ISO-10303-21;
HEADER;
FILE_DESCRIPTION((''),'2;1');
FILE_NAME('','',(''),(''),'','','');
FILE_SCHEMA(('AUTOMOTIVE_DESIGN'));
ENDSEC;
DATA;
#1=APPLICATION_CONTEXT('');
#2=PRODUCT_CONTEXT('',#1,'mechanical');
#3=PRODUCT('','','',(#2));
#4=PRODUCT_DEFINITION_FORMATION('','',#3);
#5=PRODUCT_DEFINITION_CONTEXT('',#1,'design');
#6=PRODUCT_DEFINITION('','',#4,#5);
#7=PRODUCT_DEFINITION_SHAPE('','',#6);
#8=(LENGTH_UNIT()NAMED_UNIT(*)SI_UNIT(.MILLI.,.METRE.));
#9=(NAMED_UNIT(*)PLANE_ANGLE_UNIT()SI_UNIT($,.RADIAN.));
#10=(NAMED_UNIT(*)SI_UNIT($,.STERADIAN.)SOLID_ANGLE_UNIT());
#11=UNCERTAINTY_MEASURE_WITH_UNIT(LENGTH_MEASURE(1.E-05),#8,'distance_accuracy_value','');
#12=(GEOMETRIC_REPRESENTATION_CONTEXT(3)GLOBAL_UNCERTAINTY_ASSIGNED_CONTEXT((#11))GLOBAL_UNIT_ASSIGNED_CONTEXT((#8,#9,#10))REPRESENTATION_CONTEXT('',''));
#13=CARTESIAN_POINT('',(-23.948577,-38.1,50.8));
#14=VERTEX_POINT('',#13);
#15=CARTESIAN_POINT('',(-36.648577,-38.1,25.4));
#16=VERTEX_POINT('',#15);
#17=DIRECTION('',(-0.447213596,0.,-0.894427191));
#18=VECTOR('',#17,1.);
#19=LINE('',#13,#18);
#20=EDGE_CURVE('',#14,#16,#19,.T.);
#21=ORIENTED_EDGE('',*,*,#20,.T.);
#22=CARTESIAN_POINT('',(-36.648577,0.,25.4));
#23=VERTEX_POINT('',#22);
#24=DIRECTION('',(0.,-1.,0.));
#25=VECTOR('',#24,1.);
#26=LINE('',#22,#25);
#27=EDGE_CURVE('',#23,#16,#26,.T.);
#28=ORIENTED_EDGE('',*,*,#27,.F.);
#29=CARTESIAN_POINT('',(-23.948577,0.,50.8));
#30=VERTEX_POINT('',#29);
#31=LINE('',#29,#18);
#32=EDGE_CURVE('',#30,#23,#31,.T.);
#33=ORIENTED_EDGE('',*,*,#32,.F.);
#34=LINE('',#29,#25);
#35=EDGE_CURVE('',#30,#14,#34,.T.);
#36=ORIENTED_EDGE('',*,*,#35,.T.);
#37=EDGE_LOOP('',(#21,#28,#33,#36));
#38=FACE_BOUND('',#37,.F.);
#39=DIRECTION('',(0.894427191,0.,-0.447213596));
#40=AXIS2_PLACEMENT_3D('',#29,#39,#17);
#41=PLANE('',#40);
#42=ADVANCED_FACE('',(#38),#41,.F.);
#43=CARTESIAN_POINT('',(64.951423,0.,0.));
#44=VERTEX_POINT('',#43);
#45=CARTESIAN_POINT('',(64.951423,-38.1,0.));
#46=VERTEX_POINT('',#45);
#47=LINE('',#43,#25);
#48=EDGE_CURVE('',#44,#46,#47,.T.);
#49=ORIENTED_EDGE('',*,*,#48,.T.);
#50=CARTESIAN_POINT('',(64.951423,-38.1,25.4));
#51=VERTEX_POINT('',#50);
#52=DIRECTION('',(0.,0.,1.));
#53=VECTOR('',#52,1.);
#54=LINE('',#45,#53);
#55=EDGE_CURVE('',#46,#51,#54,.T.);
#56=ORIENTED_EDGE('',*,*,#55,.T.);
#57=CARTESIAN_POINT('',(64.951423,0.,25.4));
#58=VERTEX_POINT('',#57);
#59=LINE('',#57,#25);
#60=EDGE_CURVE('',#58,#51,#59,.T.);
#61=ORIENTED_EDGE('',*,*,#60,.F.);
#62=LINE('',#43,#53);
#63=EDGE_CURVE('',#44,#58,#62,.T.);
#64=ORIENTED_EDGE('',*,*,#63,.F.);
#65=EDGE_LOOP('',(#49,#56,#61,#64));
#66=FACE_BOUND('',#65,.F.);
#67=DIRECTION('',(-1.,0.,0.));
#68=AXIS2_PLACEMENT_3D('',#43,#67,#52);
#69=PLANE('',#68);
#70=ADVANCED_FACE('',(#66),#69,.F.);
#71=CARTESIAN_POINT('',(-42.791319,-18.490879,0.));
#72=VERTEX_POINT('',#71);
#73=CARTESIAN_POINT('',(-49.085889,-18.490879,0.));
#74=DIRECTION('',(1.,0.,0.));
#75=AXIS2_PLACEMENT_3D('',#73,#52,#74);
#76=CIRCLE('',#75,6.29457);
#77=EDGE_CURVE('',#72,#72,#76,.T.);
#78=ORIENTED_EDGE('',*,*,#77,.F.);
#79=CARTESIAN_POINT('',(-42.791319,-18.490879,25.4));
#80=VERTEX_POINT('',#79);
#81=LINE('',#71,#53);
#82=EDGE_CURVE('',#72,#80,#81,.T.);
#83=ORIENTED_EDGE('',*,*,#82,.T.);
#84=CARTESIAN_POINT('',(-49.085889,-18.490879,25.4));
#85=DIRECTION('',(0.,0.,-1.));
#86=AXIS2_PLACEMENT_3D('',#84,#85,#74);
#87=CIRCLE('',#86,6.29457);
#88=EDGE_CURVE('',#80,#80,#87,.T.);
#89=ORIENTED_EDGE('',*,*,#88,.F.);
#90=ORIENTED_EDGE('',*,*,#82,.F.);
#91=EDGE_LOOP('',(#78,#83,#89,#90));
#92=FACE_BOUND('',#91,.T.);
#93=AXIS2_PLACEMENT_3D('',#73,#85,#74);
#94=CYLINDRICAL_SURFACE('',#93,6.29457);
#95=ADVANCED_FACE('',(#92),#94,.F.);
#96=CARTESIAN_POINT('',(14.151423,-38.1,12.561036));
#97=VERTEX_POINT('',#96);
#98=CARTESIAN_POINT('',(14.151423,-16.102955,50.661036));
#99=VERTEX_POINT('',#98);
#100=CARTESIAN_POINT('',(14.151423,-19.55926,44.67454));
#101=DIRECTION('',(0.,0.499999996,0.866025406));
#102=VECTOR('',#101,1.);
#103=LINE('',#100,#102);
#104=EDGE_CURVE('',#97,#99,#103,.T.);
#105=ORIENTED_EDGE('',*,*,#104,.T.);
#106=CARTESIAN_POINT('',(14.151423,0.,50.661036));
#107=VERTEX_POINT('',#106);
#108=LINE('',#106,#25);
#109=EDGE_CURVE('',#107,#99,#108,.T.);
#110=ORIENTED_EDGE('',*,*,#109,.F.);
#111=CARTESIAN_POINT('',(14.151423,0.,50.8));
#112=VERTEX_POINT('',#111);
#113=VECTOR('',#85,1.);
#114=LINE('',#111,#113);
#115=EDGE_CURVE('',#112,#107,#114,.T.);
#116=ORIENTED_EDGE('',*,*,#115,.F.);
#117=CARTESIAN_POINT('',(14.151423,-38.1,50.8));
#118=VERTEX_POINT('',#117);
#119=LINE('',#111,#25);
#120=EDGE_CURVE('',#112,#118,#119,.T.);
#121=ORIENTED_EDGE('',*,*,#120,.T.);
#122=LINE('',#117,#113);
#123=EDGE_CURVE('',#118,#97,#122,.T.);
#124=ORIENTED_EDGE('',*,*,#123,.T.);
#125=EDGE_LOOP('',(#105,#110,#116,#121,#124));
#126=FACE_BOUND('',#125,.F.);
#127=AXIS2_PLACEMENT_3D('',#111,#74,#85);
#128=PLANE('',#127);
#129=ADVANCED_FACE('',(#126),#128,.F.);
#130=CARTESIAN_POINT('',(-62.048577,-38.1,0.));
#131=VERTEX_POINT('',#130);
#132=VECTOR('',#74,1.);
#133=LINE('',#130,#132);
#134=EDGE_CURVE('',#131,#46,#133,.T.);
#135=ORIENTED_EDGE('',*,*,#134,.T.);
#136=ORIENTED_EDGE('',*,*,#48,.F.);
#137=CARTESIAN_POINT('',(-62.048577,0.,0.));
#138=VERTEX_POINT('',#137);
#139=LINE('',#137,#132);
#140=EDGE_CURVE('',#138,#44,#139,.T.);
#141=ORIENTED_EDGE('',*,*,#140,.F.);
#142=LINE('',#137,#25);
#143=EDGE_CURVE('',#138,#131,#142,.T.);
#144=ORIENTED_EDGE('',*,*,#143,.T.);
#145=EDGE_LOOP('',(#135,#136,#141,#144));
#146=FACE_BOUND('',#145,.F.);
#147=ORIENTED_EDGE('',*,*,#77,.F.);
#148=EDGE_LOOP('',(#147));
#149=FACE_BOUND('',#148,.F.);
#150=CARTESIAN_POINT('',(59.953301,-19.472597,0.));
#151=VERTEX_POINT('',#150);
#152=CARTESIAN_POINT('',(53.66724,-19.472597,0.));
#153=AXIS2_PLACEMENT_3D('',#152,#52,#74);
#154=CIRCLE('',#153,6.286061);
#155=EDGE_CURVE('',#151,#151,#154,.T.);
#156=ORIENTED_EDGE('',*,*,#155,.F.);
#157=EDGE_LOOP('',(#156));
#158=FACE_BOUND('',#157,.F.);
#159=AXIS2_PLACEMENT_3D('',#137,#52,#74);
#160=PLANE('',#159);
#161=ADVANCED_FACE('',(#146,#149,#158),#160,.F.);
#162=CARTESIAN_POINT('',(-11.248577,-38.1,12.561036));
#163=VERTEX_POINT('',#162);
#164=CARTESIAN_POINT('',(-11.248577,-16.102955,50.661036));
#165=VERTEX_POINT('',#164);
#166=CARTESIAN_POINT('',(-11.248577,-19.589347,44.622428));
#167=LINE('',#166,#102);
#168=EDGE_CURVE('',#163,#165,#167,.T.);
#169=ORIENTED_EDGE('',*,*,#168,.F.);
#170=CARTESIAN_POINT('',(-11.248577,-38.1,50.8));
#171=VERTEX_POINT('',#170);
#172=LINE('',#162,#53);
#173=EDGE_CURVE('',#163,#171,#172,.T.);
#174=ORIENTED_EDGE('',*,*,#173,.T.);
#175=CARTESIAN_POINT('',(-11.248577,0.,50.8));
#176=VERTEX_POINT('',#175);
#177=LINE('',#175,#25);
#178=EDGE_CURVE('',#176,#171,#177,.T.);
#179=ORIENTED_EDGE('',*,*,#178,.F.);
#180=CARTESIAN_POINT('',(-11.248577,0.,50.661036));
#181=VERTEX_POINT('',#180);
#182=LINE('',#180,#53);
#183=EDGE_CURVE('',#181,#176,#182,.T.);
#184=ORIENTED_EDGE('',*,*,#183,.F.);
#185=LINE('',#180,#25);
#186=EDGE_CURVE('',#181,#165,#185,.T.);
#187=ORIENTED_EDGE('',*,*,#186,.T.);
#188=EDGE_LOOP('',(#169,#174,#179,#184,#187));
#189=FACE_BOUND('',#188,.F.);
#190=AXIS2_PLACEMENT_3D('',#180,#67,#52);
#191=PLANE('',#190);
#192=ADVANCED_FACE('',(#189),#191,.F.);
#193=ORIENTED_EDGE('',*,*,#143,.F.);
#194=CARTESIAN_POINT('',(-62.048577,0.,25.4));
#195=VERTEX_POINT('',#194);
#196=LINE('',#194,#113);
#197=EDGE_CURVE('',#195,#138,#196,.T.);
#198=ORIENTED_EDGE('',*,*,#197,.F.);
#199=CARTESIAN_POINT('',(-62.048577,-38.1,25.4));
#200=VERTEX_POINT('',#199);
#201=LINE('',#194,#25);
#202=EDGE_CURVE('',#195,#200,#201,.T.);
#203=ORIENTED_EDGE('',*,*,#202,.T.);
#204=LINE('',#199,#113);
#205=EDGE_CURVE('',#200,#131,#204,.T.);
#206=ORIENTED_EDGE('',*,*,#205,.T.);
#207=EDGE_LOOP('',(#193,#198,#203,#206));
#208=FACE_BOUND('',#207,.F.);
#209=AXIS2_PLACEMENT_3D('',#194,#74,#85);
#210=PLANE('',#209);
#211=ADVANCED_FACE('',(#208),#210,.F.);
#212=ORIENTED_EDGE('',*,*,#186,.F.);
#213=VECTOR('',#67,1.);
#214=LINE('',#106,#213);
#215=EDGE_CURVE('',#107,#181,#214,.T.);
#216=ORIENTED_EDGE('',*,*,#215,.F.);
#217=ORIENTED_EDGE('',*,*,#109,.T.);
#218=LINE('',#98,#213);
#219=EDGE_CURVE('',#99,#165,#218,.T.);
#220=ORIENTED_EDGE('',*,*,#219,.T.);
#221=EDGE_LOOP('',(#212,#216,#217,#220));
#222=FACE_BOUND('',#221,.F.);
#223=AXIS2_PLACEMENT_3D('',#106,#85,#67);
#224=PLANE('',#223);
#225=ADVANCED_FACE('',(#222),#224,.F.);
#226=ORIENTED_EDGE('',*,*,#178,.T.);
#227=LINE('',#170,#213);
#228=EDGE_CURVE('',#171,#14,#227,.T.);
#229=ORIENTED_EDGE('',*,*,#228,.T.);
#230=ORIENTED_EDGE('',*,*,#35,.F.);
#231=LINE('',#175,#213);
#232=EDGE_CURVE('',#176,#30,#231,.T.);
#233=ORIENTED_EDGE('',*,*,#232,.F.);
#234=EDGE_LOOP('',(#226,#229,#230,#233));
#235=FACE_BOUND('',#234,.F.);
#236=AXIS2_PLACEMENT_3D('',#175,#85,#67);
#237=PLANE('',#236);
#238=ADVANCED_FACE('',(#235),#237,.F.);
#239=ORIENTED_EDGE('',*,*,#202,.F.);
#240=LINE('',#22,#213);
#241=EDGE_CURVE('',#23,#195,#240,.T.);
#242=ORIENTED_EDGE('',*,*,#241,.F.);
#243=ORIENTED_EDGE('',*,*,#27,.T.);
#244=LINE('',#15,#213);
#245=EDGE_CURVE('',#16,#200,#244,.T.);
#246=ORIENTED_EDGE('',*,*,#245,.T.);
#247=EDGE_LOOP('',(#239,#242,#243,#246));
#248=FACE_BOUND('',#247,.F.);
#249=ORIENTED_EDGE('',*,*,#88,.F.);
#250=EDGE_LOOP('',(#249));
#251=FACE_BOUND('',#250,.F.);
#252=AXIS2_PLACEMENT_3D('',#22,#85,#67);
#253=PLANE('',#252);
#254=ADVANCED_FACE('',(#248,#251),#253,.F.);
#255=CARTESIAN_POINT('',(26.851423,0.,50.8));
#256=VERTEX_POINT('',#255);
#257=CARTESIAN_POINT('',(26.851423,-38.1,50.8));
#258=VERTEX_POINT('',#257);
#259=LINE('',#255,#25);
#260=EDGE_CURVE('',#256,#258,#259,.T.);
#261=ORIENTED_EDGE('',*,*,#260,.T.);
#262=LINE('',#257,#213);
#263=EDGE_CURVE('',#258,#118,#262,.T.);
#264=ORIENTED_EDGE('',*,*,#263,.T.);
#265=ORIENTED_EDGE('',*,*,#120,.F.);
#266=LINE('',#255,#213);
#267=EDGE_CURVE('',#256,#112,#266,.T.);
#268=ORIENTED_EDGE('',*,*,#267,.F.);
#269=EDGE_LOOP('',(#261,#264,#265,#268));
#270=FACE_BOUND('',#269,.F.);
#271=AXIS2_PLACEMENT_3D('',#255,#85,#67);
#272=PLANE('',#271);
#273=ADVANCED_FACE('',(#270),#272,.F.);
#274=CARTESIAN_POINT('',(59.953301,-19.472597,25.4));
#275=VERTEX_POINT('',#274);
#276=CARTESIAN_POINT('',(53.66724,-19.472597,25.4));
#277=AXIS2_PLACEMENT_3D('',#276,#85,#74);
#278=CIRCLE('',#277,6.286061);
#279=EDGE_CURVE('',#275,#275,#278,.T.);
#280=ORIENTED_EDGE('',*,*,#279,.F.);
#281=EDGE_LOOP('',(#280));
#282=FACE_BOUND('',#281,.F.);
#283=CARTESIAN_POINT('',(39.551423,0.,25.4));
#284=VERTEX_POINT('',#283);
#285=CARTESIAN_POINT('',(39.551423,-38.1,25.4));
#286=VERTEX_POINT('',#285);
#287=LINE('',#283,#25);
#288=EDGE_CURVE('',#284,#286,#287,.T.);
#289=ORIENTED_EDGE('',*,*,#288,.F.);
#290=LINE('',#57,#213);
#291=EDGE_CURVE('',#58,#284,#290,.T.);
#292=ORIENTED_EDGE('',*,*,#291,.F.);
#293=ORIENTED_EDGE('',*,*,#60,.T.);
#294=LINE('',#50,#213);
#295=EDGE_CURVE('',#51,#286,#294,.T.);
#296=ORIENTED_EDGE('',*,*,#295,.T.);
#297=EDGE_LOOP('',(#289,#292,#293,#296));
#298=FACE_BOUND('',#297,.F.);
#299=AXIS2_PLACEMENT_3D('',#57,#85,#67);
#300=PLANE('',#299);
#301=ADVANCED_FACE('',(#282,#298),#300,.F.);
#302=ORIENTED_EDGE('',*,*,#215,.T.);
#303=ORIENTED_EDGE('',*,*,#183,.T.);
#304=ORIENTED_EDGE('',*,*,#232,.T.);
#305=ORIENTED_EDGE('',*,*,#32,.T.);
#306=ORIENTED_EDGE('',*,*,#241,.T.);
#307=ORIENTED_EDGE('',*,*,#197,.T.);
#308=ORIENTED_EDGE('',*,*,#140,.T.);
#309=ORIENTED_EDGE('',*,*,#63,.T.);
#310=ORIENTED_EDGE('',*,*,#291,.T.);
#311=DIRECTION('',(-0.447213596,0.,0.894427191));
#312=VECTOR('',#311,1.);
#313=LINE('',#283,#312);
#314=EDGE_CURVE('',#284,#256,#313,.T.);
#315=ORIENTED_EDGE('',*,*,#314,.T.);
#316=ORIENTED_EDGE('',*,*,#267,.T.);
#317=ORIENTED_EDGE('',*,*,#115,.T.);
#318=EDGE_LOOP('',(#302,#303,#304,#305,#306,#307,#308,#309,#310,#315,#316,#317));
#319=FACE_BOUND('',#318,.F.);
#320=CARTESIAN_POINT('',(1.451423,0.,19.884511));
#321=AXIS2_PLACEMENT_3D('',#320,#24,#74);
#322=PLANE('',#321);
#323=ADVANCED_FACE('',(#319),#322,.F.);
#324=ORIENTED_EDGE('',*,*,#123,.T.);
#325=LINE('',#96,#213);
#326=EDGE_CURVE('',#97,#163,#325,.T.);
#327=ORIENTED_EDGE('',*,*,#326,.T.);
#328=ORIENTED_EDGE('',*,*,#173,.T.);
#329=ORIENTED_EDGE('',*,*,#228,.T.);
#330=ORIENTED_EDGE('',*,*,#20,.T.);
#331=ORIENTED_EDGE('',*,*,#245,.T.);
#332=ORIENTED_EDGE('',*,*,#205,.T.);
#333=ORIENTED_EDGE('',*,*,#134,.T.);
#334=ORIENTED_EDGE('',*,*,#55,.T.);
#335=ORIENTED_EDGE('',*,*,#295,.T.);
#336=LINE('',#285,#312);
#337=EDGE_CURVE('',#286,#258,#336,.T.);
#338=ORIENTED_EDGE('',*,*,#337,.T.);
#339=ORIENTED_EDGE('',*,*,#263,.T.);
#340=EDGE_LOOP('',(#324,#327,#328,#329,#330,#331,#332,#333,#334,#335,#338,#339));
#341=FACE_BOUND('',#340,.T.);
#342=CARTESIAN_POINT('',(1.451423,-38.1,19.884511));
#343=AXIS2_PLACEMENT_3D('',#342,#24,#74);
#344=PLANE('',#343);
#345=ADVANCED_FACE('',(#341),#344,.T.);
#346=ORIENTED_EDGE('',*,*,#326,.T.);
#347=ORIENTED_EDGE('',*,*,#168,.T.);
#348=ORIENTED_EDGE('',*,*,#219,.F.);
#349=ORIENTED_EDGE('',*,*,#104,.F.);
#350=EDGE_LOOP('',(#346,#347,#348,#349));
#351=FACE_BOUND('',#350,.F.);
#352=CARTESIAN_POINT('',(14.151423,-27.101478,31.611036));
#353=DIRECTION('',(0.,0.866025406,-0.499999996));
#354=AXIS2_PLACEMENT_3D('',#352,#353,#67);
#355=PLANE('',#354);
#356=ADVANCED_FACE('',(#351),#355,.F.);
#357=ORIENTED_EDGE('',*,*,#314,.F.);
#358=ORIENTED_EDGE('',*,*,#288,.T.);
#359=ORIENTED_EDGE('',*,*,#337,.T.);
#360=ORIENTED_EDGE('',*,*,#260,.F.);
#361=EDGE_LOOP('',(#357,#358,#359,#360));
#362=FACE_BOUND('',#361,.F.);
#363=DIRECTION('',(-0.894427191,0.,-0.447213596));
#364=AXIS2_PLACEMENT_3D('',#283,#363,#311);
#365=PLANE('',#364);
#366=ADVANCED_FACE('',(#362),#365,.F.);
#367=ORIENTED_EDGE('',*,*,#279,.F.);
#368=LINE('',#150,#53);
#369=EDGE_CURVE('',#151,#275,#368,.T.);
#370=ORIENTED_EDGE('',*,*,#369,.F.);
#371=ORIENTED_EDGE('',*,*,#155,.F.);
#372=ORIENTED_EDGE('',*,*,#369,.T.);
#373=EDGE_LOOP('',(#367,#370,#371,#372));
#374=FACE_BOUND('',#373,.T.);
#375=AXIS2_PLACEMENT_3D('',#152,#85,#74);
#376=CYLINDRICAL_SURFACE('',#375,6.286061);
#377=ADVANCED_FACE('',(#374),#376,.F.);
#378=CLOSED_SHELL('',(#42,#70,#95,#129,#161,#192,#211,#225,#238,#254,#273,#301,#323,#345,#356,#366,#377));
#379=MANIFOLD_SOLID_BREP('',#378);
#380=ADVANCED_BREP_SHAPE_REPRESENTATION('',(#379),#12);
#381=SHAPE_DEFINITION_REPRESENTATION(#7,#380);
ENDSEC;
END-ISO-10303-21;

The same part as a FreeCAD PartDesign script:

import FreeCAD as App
import Part
import Sketcher

V = App.Vector
Q = App.Units.Quantity


def edges_at(feature, points):
    """Names of the edges that pass closest to the given points."""
    edges = feature.Shape.Edges
    near = lambda p: min(range(len(edges)), key=lambda i: edges[i].distToShape(Part.Vertex(*p))[0])
    return sorted({f"Edge{near(p) + 1}" for p in points})


def add_polygon(sketch, points):
    """Adds a closed chain of lines whose ends are joined by coincident constraints."""
    first, n = sketch.GeometryCount, len(points)
    for a, b in zip(points, points[1:] + points[:1]):
        sketch.addGeometry(Part.LineSegment(App.Vector(*a, 0), App.Vector(*b, 0)), False)
    for i in range(n):
        sketch.addConstraint(Sketcher.Constraint("Coincident", first + i, 2, first + (i + 1) % n, 1))

doc = App.newDocument("Part")
body = doc.addObject("PartDesign::Body", "Body")

# Sketch on XZ plane
sketch1 = body.newObject("Sketcher::SketchObject", "Sketch")
sketch1.AttachmentSupport = (doc.getObject("XZ_Plane"), [""])
sketch1.MapMode = "FlatFace"
add_polygon(sketch1, [(-62.05, 25.4), (-62.05, 0), (64.95, 0), (64.95, 25.4), (39.55, 25.4), (26.85, 50.8), (14.15, 50.8), (14.15, 50.66), (-11.25, 50.66), (-11.25, 50.8), (-23.95, 50.8), (-36.65, 25.4)])  # lines 0-11
sketch1.addConstraint(Sketcher.Constraint("Vertical", 0))
sketch1.addConstraint(Sketcher.Constraint("Horizontal", 1))
sketch1.addConstraint(Sketcher.Constraint("Vertical", 2))
sketch1.addConstraint(Sketcher.Constraint("Horizontal", 3))
sketch1.addConstraint(Sketcher.Constraint("Horizontal", 5))
sketch1.addConstraint(Sketcher.Constraint("Vertical", 6))
sketch1.addConstraint(Sketcher.Constraint("Horizontal", 7))
sketch1.addConstraint(Sketcher.Constraint("Vertical", 8))
sketch1.addConstraint(Sketcher.Constraint("Horizontal", 9))
sketch1.addConstraint(Sketcher.Constraint("Horizontal", 11))
sketch1.addConstraint(Sketcher.Constraint("PointOnObject", 0, 2, -1))
sketch1.addConstraint(Sketcher.Constraint("Horizontal", 5, 2, 8, 2))
sketch1.addConstraint(Sketcher.Constraint("Horizontal", 3, 2, 10, 2))
sketch1.addConstraint(Sketcher.Constraint("Equal", 3, 7))
sketch1.addConstraint(Sketcher.Constraint("Equal", 5, 9))
sketch1.addConstraint(Sketcher.Constraint("Equal", 7, 11))
sketch1.addConstraint(Sketcher.Constraint("Equal", 11, 0))
sketch1.addConstraint(Sketcher.Constraint("Equal", 4, 10))
sketch1.addConstraint(Sketcher.Constraint("DistanceX", 1, 1, 1, 2, Q("5 in")))
sketch1.addConstraint(Sketcher.Constraint("DistanceX", 3, 2, 3, 1, Q("1 in")))
sketch1.addConstraint(Sketcher.Constraint("DistanceX", 5, 2, 5, 1, Q("0.5 in")))
sketch1.addConstraint(Sketcher.Constraint("DistanceY", -1, 1, 4, 2, Q("2 in")))
sketch1.addConstraint(Sketcher.Constraint("DistanceY", 6, 2, 6, 1, 0.138964))
sketch1.addConstraint(Sketcher.Constraint("DistanceX", 0, 2, -1, 1, 62.048577))
pad1 = body.newObject("PartDesign::Pad", "Pad")
pad1.Profile = sketch1
pad1.Length = Q("1.5 in")

# Sketch on XY plane
sketch2 = body.newObject("Sketcher::SketchObject", "Sketch001")
sketch2.AttachmentSupport = (doc.getObject("XY_Plane"), [""])
sketch2.MapMode = "FlatFace"
sketch2.addGeometry(Part.Circle(V(-49, -18, 0), V(0, 0, 1), 6), False)
sketch2.addGeometry(Part.Circle(V(54, -19, 0), V(0, 0, 1), 6), False)
sketch2.addConstraint(Sketcher.Constraint("Diameter", 0, 12.58914))
sketch2.addConstraint(Sketcher.Constraint("Diameter", 1, 12.572122))
sketch2.addConstraint(Sketcher.Constraint("DistanceX", 0, 3, -1, 1, 49.085889))
sketch2.addConstraint(Sketcher.Constraint("DistanceY", 0, 3, -1, 1, 18.490879))
sketch2.addConstraint(Sketcher.Constraint("DistanceX", -1, 1, 1, 3, 53.66724))
sketch2.addConstraint(Sketcher.Constraint("DistanceY", 1, 3, 0, 3, 0.981718))
pocket1 = body.newObject("PartDesign::Pocket", "Pocket")
pocket1.Profile = sketch2
pocket1.Length = Q("3.24 in")
pocket1.Reversed = True
doc.recompute()

chamfer = body.newObject("PartDesign::Chamfer", "Chamfer")
chamfer.Base = (pocket1, edges_at(pocket1, [(1.451, -38.1, 50.661)]))
chamfer.ChamferType = "Two distances"
chamfer.Size = Q("1.5 in")
chamfer.Size2 = 21.997045

doc.recompute()
